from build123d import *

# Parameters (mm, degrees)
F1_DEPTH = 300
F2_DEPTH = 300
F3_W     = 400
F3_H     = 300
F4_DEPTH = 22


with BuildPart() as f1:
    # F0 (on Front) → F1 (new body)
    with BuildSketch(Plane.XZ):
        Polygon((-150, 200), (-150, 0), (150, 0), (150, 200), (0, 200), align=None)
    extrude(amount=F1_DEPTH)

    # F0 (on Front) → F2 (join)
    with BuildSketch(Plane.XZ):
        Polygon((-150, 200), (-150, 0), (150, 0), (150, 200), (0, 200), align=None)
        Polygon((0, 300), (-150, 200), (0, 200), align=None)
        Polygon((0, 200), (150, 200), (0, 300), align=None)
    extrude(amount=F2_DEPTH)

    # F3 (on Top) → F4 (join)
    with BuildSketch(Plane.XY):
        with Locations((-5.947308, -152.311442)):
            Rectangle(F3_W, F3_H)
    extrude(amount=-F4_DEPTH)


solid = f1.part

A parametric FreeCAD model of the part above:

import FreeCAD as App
import Part
import Sketcher

V = App.Vector
Q = App.Units.Quantity


def add_polygon(sketch, points):
    """Adds a closed chain of lines whose ends are joined by coincident constraints."""
    first, n = sketch.GeometryCount, len(points)
    for a, b in zip(points, points[1:] + points[:1]):
        sketch.addGeometry(Part.LineSegment(App.Vector(*a, 0), App.Vector(*b, 0)), False)
    for i in range(n):
        sketch.addConstraint(Sketcher.Constraint("Coincident", first + i, 2, first + (i + 1) % n, 1))

doc = App.newDocument("Part")
body = doc.addObject("PartDesign::Body", "Body")

sketch1 = doc.addObject("Sketcher::SketchObject", "Sketch")
body.addObject(sketch1)
sketch1.AttachmentSupport = (doc.XZ_Plane, [""])
sketch1.MapMode = "FlatFace"
add_polygon(sketch1, [(-150, 200), (-150, 0), (150, 0), (150, 200)])
sketch1.addConstraint(Sketcher.Constraint("Vertical", 0))
sketch1.addConstraint(Sketcher.Constraint("Horizontal", 1))
sketch1.addConstraint(Sketcher.Constraint("Vertical", 2))
sketch1.addConstraint(Sketcher.Constraint("Horizontal", 3))
sketch1.addConstraint(Sketcher.Constraint("Symmetric", 0, 2, 1, 2, -1, 1))
sketch1.addConstraint(Sketcher.Constraint("DistanceX", 1, 1, 1, 2, Q("300 mm")))
sketch1.addConstraint(Sketcher.Constraint("DistanceY", 0, 2, 0, 1, Q("200 mm")))
pad1 = doc.addObject("PartDesign::Pad", "Pad")
body.addObject(pad1)
pad1.Profile = sketch1
pad1.Length = 300

sketch2 = doc.addObject("Sketcher::SketchObject", "Sketch001")
body.addObject(sketch2)
sketch2.AttachmentSupport = (doc.XZ_Plane, [""])
sketch2.MapMode = "FlatFace"
add_polygon(sketch2, [(-150, 200), (-150, 0), (150, 0), (150, 200), (0, 300)])
sketch2.addConstraint(Sketcher.Constraint("Vertical", 0))
sketch2.addConstraint(Sketcher.Constraint("Horizontal", 1))
sketch2.addConstraint(Sketcher.Constraint("Vertical", 2))
sketch2.addConstraint(Sketcher.Constraint("Symmetric", 0, 2, 1, 2, -1, 1))
sketch2.addConstraint(Sketcher.Constraint("PointOnObject", 3, 2, -2))
sketch2.addConstraint(Sketcher.Constraint("Horizontal", 2, 2, 4, 2))
sketch2.addConstraint(Sketcher.Constraint("DistanceX", 1, 1, 1, 2, Q("300 mm")))
sketch2.addConstraint(Sketcher.Constraint("DistanceY", 0, 2, 0, 1, Q("200 mm")))
sketch2.addConstraint(Sketcher.Constraint("DistanceY", -1, 1, 3, 2, Q("300 mm")))
pad2 = doc.addObject("PartDesign::Pad", "Pad001")
body.addObject(pad2)
pad2.Profile = sketch2
pad2.Length = 300

sketch3 = doc.addObject("Sketcher::SketchObject", "Sketch002")
body.addObject(sketch3)
sketch3.AttachmentSupport = (doc.XY_Plane, [""])
sketch3.MapMode = "FlatFace"
add_polygon(sketch3, [(-205.947308, -2.311442), (-205.947308, -302.311442), (194.052692, -302.311442), (194.052692, -2.311442)])
sketch3.addConstraint(Sketcher.Constraint("Vertical", 0))
sketch3.addConstraint(Sketcher.Constraint("Horizontal", 1))
sketch3.addConstraint(Sketcher.Constraint("Vertical", 2))
sketch3.addConstraint(Sketcher.Constraint("Horizontal", 3))
sketch3.addConstraint(Sketcher.Constraint("DistanceX", 1, 1, 1, 2, Q("400 mm")))
sketch3.addConstraint(Sketcher.Constraint("DistanceY", 0, 2, 0, 1, Q("300 mm")))
sketch3.addConstraint(Sketcher.Constraint("DistanceX", 0, 2, -1, 1, Q("205.947308 mm")))
sketch3.addConstraint(Sketcher.Constraint("DistanceY", 0, 2, -1, 1, Q("302.311442 mm")))
pad3 = doc.addObject("PartDesign::Pad", "Pad002")
body.addObject(pad3)
pad3.Profile = sketch3
pad3.Length = 22
pad3.Reversed = True

doc.recompute()
